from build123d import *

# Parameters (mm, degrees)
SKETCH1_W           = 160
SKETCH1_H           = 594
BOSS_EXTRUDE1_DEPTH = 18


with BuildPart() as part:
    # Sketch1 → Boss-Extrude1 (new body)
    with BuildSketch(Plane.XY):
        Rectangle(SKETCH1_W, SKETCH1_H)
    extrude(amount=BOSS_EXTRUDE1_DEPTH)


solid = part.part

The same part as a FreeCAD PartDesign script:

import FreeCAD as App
import Part
import Sketcher

V = App.Vector

doc = App.newDocument("Part")
body = doc.addObject("PartDesign::Body", "Body")

sketch1 = body.newObject("Sketcher::SketchObject", "Sketch")
sketch1.AttachmentSupport = (doc.getObject("XY_Plane"), [""])
sketch1.MapMode = "FlatFace"
sketch1.addGeometry([
    Part.LineSegment(V(-80, 297, 0), V(-80, -297, 0)),
    Part.LineSegment(V(-80, -297, 0), V(80, -297, 0)),
    Part.LineSegment(V(80, -297, 0), V(80, 297, 0)),
    Part.LineSegment(V(80, 297, 0), V(-80, 297, 0)),
], False)
sketch1.addConstraint([
    Sketcher.Constraint("Coincident", 0, 2, 1, 1),
    Sketcher.Constraint("Coincident", 1, 2, 2, 1),
    Sketcher.Constraint("Coincident", 2, 2, 3, 1),
    Sketcher.Constraint("Coincident", 3, 2, 0, 1),
    Sketcher.Constraint("Vertical", 0),
    Sketcher.Constraint("Horizontal", 1),
    Sketcher.Constraint("Vertical", 2),
    Sketcher.Constraint("Horizontal", 3),
    Sketcher.Constraint("Symmetric", 0, 2, 2, 2, -1, 1),
    Sketcher.Constraint("DistanceX", 1, 1, 1, 2, 160.0),
    Sketcher.Constraint("DistanceY", 0, 2, 0, 1, 594.0),
])
pad1 = body.newObject("PartDesign::Pad", "Pad")
pad1.Profile = sketch1
pad1.Length = 18

doc.recompute()
